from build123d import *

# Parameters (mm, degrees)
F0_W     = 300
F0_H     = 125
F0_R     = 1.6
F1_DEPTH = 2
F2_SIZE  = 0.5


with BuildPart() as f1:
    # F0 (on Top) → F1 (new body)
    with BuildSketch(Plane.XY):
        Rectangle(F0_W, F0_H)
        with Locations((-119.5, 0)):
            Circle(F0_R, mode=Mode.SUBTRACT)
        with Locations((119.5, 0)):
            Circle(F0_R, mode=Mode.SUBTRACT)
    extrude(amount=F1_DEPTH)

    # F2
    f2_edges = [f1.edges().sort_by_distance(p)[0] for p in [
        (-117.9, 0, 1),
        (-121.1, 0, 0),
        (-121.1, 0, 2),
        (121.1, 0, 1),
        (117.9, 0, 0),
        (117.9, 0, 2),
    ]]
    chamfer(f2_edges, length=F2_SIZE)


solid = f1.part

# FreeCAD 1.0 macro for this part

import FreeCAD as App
import Part
import Sketcher


def edges_at(feature, points):
    """Names of the edges that pass closest to the given points."""
    edges = feature.Shape.Edges
    near = lambda p: min(range(len(edges)), key=lambda i: edges[i].distToShape(Part.Vertex(*p))[0])
    return sorted({f"Edge{near(p) + 1}" for p in points})


def add_polygon(sketch, points):
    """Adds a closed chain of lines whose ends are joined by coincident constraints."""
    first, n = sketch.GeometryCount, len(points)
    for a, b in zip(points, points[1:] + points[:1]):
        sketch.addGeometry(Part.LineSegment(App.Vector(*a, 0), App.Vector(*b, 0)), False)
    for i in range(n):
        sketch.addConstraint(Sketcher.Constraint("Coincident", first + i, 2, first + (i + 1) % n, 1))

doc = App.newDocument("Part")
body = doc.addObject("PartDesign::Body", "Body")

sketch1 = body.newObject("Sketcher::SketchObject", "Sketch")
sketch1.AttachmentSupport = (doc.getObject("XY_Plane"), [""])
sketch1.MapMode = "FlatFace"
add_polygon(sketch1, [(-150, 62.5), (-150, -62.5), (150, -62.5), (150, 62.5)])
sketch1.addGeometry(Part.Circle(App.Vector(-119.5, 0, 0), App.Vector(0, 0, 1), 1.6), False)
sketch1.addGeometry(Part.Circle(App.Vector(119.5, 0, 0), App.Vector(0, 0, 1), 1.6), False)
sketch1.addConstraint([
    Sketcher.Constraint("Vertical", 0),
    Sketcher.Constraint("Horizontal", 1),
    Sketcher.Constraint("Vertical", 2),
    Sketcher.Constraint("Horizontal", 3),
    Sketcher.Constraint("Equal", 4, 5),
    Sketcher.Constraint("Symmetric", 4, 3, 5, 3, -1, 1),
    Sketcher.Constraint("Symmetric", 0, 2, 2, 2, -1, 1),
    Sketcher.Constraint("PointOnObject", 4, 3, -1),
    Sketcher.Constraint("Diameter", 4, 3.2),
    Sketcher.Constraint("DistanceX", 1, 1, 1, 2, 300.0),
    Sketcher.Constraint("DistanceY", 0, 2, 0, 1, 125.0),
    Sketcher.Constraint("DistanceX", 4, 3, 5, 3, 239.0),
])
pad1 = body.newObject("PartDesign::Pad", "Pad")
pad1.Profile = sketch1
pad1.Length = 2
doc.recompute()

chamfer = body.newObject("PartDesign::Chamfer", "Chamfer")
chamfer.Base = (pad1, edges_at(pad1, [
    (-117.9, 0, 1),
    (-121.1, 0, 0),
    (-121.1, 0, 2),
    (121.1, 0, 1),
    (117.9, 0, 0),
    (117.9, 0, 2),
]))
chamfer.Size = 0.5

doc.recompute()
